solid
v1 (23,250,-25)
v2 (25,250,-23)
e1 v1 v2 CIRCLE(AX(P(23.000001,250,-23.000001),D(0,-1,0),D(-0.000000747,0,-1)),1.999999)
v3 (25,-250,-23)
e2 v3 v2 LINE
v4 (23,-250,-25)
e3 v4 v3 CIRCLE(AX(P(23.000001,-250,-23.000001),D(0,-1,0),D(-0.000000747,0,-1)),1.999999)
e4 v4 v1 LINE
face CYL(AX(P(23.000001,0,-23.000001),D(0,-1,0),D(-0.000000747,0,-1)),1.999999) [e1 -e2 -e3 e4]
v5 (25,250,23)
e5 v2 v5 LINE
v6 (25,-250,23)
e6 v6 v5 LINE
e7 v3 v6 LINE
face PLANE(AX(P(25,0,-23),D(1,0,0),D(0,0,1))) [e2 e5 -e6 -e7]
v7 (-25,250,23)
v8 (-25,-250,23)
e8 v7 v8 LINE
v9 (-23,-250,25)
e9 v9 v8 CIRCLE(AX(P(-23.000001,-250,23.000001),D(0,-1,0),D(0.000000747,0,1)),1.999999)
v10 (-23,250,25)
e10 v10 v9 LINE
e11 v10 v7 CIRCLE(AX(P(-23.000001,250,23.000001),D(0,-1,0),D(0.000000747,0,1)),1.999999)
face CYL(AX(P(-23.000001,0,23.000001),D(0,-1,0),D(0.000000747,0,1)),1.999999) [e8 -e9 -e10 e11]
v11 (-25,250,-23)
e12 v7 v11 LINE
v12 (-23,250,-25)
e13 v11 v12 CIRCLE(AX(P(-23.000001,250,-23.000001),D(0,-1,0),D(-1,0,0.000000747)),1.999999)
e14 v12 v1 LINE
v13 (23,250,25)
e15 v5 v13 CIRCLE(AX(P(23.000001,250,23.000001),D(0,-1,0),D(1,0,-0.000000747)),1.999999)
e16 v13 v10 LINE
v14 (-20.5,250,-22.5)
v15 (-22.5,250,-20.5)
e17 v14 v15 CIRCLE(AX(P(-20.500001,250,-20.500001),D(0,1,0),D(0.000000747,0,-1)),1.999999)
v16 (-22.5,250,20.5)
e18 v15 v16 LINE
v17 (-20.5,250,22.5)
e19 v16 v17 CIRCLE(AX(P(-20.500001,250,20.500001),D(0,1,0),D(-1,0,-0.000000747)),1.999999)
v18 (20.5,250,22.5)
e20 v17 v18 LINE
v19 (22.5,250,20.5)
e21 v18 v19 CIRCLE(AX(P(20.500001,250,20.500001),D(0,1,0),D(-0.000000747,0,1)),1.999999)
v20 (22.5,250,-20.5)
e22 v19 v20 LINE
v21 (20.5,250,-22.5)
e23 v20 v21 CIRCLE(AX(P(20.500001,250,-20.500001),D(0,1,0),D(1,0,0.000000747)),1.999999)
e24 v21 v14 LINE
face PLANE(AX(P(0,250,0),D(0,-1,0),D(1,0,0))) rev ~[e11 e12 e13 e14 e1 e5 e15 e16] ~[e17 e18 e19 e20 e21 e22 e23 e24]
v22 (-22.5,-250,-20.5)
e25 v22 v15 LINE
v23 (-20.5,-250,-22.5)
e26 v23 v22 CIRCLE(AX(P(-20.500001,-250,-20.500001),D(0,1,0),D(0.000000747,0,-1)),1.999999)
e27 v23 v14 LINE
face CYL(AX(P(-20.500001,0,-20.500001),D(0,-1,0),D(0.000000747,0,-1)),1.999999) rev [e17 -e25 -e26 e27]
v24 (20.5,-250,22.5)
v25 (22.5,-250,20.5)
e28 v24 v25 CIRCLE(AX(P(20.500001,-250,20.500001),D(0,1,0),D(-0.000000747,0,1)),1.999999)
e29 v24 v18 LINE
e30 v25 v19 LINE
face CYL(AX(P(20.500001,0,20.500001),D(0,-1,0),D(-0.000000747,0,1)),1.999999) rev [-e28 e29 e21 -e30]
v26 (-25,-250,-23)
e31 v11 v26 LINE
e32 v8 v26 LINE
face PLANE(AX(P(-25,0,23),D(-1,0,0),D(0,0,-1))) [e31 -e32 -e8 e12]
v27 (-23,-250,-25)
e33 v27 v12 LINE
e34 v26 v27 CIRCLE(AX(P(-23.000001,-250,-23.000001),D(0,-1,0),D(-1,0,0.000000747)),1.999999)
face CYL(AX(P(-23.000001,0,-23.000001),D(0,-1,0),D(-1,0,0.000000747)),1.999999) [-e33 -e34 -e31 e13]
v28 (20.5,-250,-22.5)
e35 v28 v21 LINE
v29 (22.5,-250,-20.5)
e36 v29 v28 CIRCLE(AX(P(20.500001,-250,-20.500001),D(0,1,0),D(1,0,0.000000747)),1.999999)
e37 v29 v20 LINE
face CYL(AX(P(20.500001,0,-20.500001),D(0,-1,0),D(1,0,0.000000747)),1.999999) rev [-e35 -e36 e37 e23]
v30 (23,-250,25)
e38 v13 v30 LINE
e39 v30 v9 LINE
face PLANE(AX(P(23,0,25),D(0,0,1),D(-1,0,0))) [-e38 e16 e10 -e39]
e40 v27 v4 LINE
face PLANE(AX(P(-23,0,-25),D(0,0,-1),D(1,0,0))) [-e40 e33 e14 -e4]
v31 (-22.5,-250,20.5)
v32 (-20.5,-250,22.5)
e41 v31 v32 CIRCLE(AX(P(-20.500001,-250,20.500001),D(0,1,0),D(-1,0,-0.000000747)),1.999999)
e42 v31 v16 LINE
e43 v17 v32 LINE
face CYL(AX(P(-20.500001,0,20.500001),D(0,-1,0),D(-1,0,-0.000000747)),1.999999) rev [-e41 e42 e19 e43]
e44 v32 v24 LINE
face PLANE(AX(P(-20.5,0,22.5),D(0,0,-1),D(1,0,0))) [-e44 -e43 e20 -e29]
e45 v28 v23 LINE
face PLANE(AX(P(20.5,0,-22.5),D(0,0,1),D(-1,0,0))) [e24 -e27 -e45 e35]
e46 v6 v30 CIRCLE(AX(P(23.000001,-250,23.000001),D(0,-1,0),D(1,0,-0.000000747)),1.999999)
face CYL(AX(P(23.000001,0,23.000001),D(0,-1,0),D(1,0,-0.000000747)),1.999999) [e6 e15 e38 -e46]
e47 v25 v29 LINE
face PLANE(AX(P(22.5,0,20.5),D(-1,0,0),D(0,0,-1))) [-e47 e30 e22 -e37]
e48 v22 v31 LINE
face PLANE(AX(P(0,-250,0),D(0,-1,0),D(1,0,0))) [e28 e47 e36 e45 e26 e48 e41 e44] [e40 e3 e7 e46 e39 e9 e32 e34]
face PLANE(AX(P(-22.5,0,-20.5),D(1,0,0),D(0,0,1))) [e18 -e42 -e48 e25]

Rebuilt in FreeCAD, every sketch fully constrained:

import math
import FreeCAD as App
import Part
import Sketcher
from FreeCAD import Vector

doc = App.newDocument("Part")
body = doc.addObject("PartDesign::Body", "Body")

# Sketch on XZ plane
sketch1 = body.newObject("Sketcher::SketchObject", "Sketch")
sketch1.AttachmentSupport = (doc.getObject("XZ_Plane"), [""])
sketch1.MapMode = "FlatFace"
sketch1.addGeometry([
    Part.ArcOfCircle(Part.Circle(Vector(23, 23, 0), Vector(0, 0, 1), 2), math.radians(0), math.radians(90)),  # 0
    Part.LineSegment(Vector(23, 25, 0), Vector(-23, 25, 0)),  # 1
    Part.ArcOfCircle(Part.Circle(Vector(-23, 23, 0), Vector(0, 0, 1), 2), math.radians(90), math.radians(180)),  # 2
    Part.LineSegment(Vector(-25, 23, 0), Vector(-25, -23, 0)),  # 3
    Part.ArcOfCircle(Part.Circle(Vector(-23, -23, 0), Vector(0, 0, 1), 2), math.radians(180), math.radians(270)),  # 4
    Part.LineSegment(Vector(-23, -25, 0), Vector(23, -25, 0)),  # 5
    Part.ArcOfCircle(Part.Circle(Vector(23, -23, 0), Vector(0, 0, 1), 2), math.radians(-90), math.radians(0)),  # 6
    Part.LineSegment(Vector(25, -23, 0), Vector(25, 23, 0)),  # 7
    Part.ArcOfCircle(Part.Circle(Vector(-20.5, 20.5, 0), Vector(0, 0, 1), 2), math.radians(90), math.radians(180)),  # 8
    Part.LineSegment(Vector(-20.5, 22.5, 0), Vector(20.5, 22.5, 0)),  # 9
    Part.ArcOfCircle(Part.Circle(Vector(20.5, 20.5, 0), Vector(0, 0, 1), 2), math.radians(0), math.radians(90)),  # 10
    Part.LineSegment(Vector(22.5, 20.5, 0), Vector(22.5, -20.5, 0)),  # 11
    Part.ArcOfCircle(Part.Circle(Vector(20.5, -20.5, 0), Vector(0, 0, 1), 2), math.radians(-90), math.radians(0)),  # 12
    Part.LineSegment(Vector(20.5, -22.5, 0), Vector(-20.5, -22.5, 0)),  # 13
    Part.ArcOfCircle(Part.Circle(Vector(-20.5, -20.5, 0), Vector(0, 0, 1), 2), math.radians(180), math.radians(270)),  # 14
    Part.LineSegment(Vector(-22.5, -20.5, 0), Vector(-22.5, 20.5, 0)),  # 15
], False)
sketch1.addConstraint([
    Sketcher.Constraint("Tangent", 0, 2, 1, 1),
    Sketcher.Constraint("Tangent", 1, 2, 2, 1),
    Sketcher.Constraint("Tangent", 2, 2, 3, 1),
    Sketcher.Constraint("Tangent", 3, 2, 4, 1),
    Sketcher.Constraint("Tangent", 4, 2, 5, 1),
    Sketcher.Constraint("Tangent", 5, 2, 6, 1),
    Sketcher.Constraint("Tangent", 6, 2, 7, 1),
    Sketcher.Constraint("Tangent", 7, 2, 0, 1),
    Sketcher.Constraint("Tangent", 8, 1, 9, 1),
    Sketcher.Constraint("Tangent", 9, 2, 10, 2),
    Sketcher.Constraint("Tangent", 10, 1, 11, 1),
    Sketcher.Constraint("Tangent", 11, 2, 12, 2),
    Sketcher.Constraint("Tangent", 12, 1, 13, 1),
    Sketcher.Constraint("Tangent", 13, 2, 14, 2),
    Sketcher.Constraint("Tangent", 14, 1, 15, 1),
    Sketcher.Constraint("Tangent", 15, 2, 8, 2),
    Sketcher.Constraint("Horizontal", 1),
    Sketcher.Constraint("Vertical", 3),
    Sketcher.Constraint("Horizontal", 5),
    Sketcher.Constraint("Vertical", 7),
    Sketcher.Constraint("Horizontal", 9),
    Sketcher.Constraint("Vertical", 11),
    Sketcher.Constraint("Horizontal", 13),
    Sketcher.Constraint("Vertical", 15),
    Sketcher.Constraint("Equal", 0, 2),
    Sketcher.Constraint("Equal", 2, 4),
    Sketcher.Constraint("Equal", 4, 6),
    Sketcher.Constraint("Equal", 6, 8),
    Sketcher.Constraint("Equal", 8, 10),
    Sketcher.Constraint("Equal", 10, 12),
    Sketcher.Constraint("Equal", 12, 14),
    Sketcher.Constraint("Symmetric", 0, 3, 4, 3, -1, 1),
    Sketcher.Constraint("Symmetric", 8, 3, 12, 3, -1, 1),
    Sketcher.Constraint("Equal", 5, 3),
    Sketcher.Constraint("Equal", 13, 11),
    Sketcher.Constraint("Radius", 0, 1.999999),
    Sketcher.Constraint("DistanceX", 1, 2, 1, 1, 46.0),
    Sketcher.Constraint("DistanceX", 9, 1, 9, 2, 41.0),
])
pad1 = body.newObject("PartDesign::Pad", "Pad")
pad1.Profile = sketch1
pad1.Length = 500
pad1.Midplane = True

doc.recompute()
